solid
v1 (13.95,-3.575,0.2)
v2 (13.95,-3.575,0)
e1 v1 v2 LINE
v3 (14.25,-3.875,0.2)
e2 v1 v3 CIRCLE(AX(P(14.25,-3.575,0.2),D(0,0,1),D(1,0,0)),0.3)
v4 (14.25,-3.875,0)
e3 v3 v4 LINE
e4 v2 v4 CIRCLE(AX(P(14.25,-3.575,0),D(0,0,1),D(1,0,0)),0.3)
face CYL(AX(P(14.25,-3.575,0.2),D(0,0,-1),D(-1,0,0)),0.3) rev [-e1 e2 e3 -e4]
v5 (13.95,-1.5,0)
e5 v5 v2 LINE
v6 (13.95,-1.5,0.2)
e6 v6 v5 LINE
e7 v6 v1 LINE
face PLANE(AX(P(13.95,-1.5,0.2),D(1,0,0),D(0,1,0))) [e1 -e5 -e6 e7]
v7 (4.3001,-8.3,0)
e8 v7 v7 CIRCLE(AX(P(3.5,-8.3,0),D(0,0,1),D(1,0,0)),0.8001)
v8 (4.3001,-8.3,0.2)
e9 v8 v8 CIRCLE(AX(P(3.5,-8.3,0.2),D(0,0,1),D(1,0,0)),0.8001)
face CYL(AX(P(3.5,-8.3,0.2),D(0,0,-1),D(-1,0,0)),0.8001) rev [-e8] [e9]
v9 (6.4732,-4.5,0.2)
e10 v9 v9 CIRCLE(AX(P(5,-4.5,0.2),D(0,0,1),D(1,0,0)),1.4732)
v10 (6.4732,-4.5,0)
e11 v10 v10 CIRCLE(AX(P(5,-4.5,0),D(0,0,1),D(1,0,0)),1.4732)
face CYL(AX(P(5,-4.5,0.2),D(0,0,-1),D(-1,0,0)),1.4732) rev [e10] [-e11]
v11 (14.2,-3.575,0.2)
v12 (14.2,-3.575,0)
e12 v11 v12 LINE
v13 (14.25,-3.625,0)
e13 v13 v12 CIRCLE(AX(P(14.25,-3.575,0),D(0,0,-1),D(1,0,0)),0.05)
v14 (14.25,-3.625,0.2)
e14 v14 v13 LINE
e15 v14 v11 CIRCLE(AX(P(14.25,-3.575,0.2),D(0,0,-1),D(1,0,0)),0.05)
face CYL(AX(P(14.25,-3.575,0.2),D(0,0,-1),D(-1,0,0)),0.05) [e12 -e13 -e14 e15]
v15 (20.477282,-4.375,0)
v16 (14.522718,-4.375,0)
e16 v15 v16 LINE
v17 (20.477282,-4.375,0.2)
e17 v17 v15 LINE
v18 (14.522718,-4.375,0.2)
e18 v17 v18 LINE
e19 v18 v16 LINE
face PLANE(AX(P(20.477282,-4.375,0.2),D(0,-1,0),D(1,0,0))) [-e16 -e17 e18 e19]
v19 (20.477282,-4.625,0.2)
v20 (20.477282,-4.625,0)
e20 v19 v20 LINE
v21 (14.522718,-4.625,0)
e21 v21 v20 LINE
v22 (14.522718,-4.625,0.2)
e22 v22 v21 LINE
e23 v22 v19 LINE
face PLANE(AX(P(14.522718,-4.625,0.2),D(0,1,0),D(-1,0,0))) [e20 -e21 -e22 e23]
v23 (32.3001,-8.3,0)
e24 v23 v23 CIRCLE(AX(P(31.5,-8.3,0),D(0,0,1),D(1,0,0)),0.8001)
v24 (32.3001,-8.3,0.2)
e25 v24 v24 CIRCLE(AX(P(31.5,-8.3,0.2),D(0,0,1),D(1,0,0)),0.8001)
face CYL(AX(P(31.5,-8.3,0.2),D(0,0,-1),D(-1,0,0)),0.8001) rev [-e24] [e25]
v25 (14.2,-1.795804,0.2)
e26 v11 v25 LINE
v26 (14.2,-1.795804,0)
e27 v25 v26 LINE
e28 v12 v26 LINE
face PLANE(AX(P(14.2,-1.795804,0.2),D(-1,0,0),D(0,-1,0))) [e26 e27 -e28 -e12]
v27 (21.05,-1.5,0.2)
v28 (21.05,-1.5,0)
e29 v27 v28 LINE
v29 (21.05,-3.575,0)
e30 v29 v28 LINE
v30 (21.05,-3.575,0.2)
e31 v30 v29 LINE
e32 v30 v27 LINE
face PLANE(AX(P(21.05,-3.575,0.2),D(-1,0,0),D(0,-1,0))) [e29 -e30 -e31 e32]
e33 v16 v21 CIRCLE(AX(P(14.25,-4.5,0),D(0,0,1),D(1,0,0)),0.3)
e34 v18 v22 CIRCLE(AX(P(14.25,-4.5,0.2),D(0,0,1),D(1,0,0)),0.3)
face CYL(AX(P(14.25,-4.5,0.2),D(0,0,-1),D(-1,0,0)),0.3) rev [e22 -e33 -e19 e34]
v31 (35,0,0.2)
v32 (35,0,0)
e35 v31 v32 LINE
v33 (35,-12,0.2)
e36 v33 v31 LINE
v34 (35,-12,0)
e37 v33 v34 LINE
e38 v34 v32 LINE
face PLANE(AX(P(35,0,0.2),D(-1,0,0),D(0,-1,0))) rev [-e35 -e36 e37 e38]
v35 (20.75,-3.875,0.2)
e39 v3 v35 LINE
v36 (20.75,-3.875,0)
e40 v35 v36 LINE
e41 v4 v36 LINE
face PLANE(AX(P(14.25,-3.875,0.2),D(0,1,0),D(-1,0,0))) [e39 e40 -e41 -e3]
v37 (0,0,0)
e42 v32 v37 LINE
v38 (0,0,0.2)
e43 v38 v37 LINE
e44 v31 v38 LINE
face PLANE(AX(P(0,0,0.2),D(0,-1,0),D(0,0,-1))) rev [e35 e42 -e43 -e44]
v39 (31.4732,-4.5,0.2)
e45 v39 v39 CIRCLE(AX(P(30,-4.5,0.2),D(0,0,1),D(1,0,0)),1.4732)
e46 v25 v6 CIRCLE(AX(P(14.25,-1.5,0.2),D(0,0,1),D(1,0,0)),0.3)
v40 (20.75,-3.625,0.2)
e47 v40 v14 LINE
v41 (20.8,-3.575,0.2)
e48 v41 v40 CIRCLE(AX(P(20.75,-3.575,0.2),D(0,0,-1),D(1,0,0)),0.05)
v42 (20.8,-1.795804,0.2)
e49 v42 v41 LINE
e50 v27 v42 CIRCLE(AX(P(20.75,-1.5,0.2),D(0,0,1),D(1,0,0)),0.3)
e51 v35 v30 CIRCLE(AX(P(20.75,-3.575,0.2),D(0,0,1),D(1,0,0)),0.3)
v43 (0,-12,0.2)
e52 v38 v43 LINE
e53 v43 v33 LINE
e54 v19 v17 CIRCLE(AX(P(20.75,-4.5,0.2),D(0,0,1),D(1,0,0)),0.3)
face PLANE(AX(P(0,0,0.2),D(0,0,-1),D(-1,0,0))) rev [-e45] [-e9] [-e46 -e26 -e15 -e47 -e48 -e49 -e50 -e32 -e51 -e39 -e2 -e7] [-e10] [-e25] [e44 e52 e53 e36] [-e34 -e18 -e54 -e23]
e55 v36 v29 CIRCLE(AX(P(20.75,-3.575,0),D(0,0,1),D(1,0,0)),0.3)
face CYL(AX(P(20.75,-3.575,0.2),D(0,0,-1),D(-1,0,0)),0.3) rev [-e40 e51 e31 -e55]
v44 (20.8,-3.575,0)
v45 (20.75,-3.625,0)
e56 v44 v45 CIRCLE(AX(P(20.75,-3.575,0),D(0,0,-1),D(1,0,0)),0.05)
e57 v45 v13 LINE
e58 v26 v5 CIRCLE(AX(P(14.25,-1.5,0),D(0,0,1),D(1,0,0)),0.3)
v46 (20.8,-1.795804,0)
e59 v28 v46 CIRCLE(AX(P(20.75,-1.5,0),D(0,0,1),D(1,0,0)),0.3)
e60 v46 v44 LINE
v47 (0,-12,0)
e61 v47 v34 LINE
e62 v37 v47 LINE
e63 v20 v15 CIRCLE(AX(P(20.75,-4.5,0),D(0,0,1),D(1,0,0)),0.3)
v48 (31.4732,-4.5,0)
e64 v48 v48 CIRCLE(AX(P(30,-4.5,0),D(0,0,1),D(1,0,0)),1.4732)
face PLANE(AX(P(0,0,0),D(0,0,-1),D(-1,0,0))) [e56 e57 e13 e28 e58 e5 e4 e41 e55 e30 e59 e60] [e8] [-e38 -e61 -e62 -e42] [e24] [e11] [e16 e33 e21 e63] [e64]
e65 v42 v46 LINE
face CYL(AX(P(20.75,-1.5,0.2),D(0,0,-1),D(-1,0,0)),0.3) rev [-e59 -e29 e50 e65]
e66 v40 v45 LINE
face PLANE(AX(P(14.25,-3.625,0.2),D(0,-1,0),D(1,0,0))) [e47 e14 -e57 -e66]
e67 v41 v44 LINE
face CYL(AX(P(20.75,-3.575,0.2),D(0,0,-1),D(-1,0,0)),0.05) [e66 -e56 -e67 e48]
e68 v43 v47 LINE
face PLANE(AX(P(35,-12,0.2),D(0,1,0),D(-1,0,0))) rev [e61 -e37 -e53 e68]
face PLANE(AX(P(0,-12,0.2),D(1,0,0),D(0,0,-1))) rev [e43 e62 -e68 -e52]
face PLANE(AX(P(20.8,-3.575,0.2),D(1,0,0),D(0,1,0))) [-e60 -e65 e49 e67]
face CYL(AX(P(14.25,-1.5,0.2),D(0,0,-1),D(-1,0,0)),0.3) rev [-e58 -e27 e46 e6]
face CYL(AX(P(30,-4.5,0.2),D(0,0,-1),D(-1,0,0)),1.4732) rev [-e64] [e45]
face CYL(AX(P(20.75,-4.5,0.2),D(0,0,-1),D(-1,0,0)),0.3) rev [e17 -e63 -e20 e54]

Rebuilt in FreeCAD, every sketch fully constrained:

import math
import FreeCAD as App
import Part
import Sketcher

doc = App.newDocument("Part")
params = doc.addObject("Spreadsheet::Sheet", "Params")
for row, (alias, value) in enumerate([
    ("sketch1_radius", "0.3 mm"),
    ("sketch1_width", "35 mm"),
    ("sketch1_height", "12 mm"),
    ("sketch1_radius2", "0.05 mm"),
    ("sketch1_width2", "6.5 mm"),
    ("pad1_length", "0.2 mm"),
], start=1):
    params.set(f"A{row}", alias)
    params.set(f"B{row}", "=" + value)
    params.setAlias(f"B{row}", alias)

body = doc.addObject("PartDesign::Body", "Body")

sketch1 = body.newObject("Sketcher::SketchObject", "Sketch")
sketch1.AttachmentSupport = (doc.getObject("XY_Plane"), [""])
sketch1.MapMode = "FlatFace"
sketch1.addGeometry(Part.LineSegment(App.Vector(0, 0, 0), App.Vector(0, -12, 0)), False)
sketch1.addGeometry(Part.LineSegment(App.Vector(0, -12, 0), App.Vector(35, -12, 0)), False)
sketch1.addGeometry(Part.LineSegment(App.Vector(35, -12, 0), App.Vector(35, 0, 0)), False)
sketch1.addGeometry(Part.LineSegment(App.Vector(35, 0, 0), App.Vector(0, 0, 0)), False)
sketch1.addGeometry(Part.Circle(App.Vector(3.5, -8.3, 0), App.Vector(0, 0, 1), 0.8), False)
sketch1.addGeometry(Part.Circle(App.Vector(31.5, -8.3, 0), App.Vector(0, 0, 1), 0.8), False)
sketch1.addGeometry(Part.Circle(App.Vector(5, -4.5, 0), App.Vector(0, 0, 1), 1.47), False)
sketch1.addGeometry(Part.LineSegment(App.Vector(14.52, -4.38, 0), App.Vector(20.48, -4.38, 0)), False)
sketch1.addGeometry(Part.ArcOfCircle(Part.Circle(App.Vector(20.75, -4.5, 0), App.Vector(0, 0, 1), 0.3), math.radians(-155), math.radians(155)), False)
sketch1.addGeometry(Part.LineSegment(App.Vector(20.48, -4.62, 0), App.Vector(14.52, -4.62, 0)), False)
sketch1.addGeometry(Part.ArcOfCircle(Part.Circle(App.Vector(14.25, -4.5, 0), App.Vector(0, 0, 1), 0.3), math.radians(25), math.radians(335)), False)
sketch1.addGeometry(Part.Circle(App.Vector(30, -4.5, 0), App.Vector(0, 0, 1), 1.47), False)
sketch1.addGeometry(Part.ArcOfCircle(Part.Circle(App.Vector(14.25, -1.5, 0), App.Vector(0, 0, 1), 0.3), math.radians(-100), math.radians(180)), False)
sketch1.addGeometry(Part.LineSegment(App.Vector(14.2, -1.8, 0), App.Vector(14.2, -3.58, 0)), False)
sketch1.addGeometry(Part.ArcOfCircle(Part.Circle(App.Vector(14.25, -3.58, 0), App.Vector(0, 0, 1), 0.05), math.radians(180), math.radians(270)), False)
sketch1.addGeometry(Part.LineSegment(App.Vector(14.25, -3.62, 0), App.Vector(20.75, -3.62, 0)), False)
sketch1.addGeometry(Part.ArcOfCircle(Part.Circle(App.Vector(20.75, -3.58, 0), App.Vector(0, 0, 1), 0.05), math.radians(-90), math.radians(0)), False)
sketch1.addGeometry(Part.LineSegment(App.Vector(20.8, -3.58, 0), App.Vector(20.8, -1.8, 0)), False)
sketch1.addGeometry(Part.ArcOfCircle(Part.Circle(App.Vector(20.75, -1.5, 0), App.Vector(0, 0, 1), 0.3), math.radians(0), math.radians(280)), False)
sketch1.addGeometry(Part.LineSegment(App.Vector(21.05, -1.5, 0), App.Vector(21.05, -3.58, 0)), False)
sketch1.addGeometry(Part.ArcOfCircle(Part.Circle(App.Vector(20.75, -3.57, 0), App.Vector(0, 0, 1), 0.3), math.radians(-90), math.radians(0)), False)
sketch1.addGeometry(Part.LineSegment(App.Vector(20.75, -3.88, 0), App.Vector(14.25, -3.88, 0)), False)
sketch1.addGeometry(Part.ArcOfCircle(Part.Circle(App.Vector(14.25, -3.57, 0), App.Vector(0, 0, 1), 0.3), math.radians(-180), math.radians(-90)), False)
sketch1.addGeometry(Part.LineSegment(App.Vector(13.95, -3.58, 0), App.Vector(13.95, -1.5, 0)), False)
sketch1.addConstraint(Sketcher.Constraint("Coincident", 0, 2, 1, 1))
sketch1.addConstraint(Sketcher.Constraint("Coincident", 1, 2, 2, 1))
sketch1.addConstraint(Sketcher.Constraint("Coincident", 2, 2, 3, 1))
sketch1.addConstraint(Sketcher.Constraint("Coincident", 3, 2, 0, 1))
sketch1.addConstraint(Sketcher.Constraint("Coincident", 7, 2, 8, 2))
sketch1.addConstraint(Sketcher.Constraint("Coincident", 8, 1, 9, 1))
sketch1.addConstraint(Sketcher.Constraint("Coincident", 9, 2, 10, 2))
sketch1.addConstraint(Sketcher.Constraint("Coincident", 10, 1, 7, 1))
sketch1.addConstraint(Sketcher.Constraint("Coincident", 12, 1, 13, 1))
sketch1.addConstraint(Sketcher.Constraint("Tangent", 13, 2, 14, 1))
sketch1.addConstraint(Sketcher.Constraint("Tangent", 14, 2, 15, 1))
sketch1.addConstraint(Sketcher.Constraint("Tangent", 15, 2, 16, 1))
sketch1.addConstraint(Sketcher.Constraint("Tangent", 16, 2, 17, 1))
sketch1.addConstraint(Sketcher.Constraint("Coincident", 17, 2, 18, 2))
sketch1.addConstraint(Sketcher.Constraint("Tangent", 18, 1, 19, 1))
sketch1.addConstraint(Sketcher.Constraint("Tangent", 19, 2, 20, 2))
sketch1.addConstraint(Sketcher.Constraint("Tangent", 20, 1, 21, 1))
sketch1.addConstraint(Sketcher.Constraint("Tangent", 21, 2, 22, 2))
sketch1.addConstraint(Sketcher.Constraint("Tangent", 22, 1, 23, 1))
sketch1.addConstraint(Sketcher.Constraint("Tangent", 23, 2, 12, 2))
sketch1.addConstraint(Sketcher.Constraint("Vertical", 0))
sketch1.addConstraint(Sketcher.Constraint("Horizontal", 1))
sketch1.addConstraint(Sketcher.Constraint("Vertical", 2))
sketch1.addConstraint(Sketcher.Constraint("Horizontal", 3))
sketch1.addConstraint(Sketcher.Constraint("Horizontal", 7))
sketch1.addConstraint(Sketcher.Constraint("Horizontal", 9))
sketch1.addConstraint(Sketcher.Constraint("Vertical", 13))
sketch1.addConstraint(Sketcher.Constraint("Horizontal", 15))
sketch1.addConstraint(Sketcher.Constraint("Vertical", 17))
sketch1.addConstraint(Sketcher.Constraint("Vertical", 19))
sketch1.addConstraint(Sketcher.Constraint("Horizontal", 21))
sketch1.addConstraint(Sketcher.Constraint("Vertical", 23))
sketch1.addConstraint(Sketcher.Constraint("Coincident", 3, 2, -1, 1))
sketch1.addConstraint(Sketcher.Constraint("Coincident", 20, 3, 16, 3))
sketch1.addConstraint(Sketcher.Constraint("Coincident", 22, 3, 14, 3))
sketch1.addConstraint(Sketcher.Constraint("Equal", 4, 5))
sketch1.addConstraint(Sketcher.Constraint("Equal", 8, 10))
sketch1.addConstraint(Sketcher.Constraint("Equal", 6, 11))
sketch1.addConstraint(Sketcher.Constraint("Equal", 10, 12))
sketch1.addConstraint(Sketcher.Constraint("Equal", 14, 16))
sketch1.addConstraint(Sketcher.Constraint("Equal", 12, 18))
sketch1.addConstraint(Sketcher.Constraint("Equal", 18, 20))
sketch1.addConstraint(Sketcher.Constraint("Horizontal", 4, 3, 5, 3))
sketch1.addConstraint(Sketcher.Constraint("Horizontal", 6, 3, 8, 3))
sketch1.addConstraint(Sketcher.Constraint("Horizontal", 8, 3, 10, 3))
sketch1.addConstraint(Sketcher.Constraint("Horizontal", 10, 3, 11, 3))
sketch1.addConstraint(Sketcher.Constraint("Horizontal", 12, 3, 18, 3))
sketch1.addConstraint(Sketcher.Constraint("Vertical", 10, 3, 12, 3))
sketch1.addConstraint(Sketcher.Constraint("Vertical", 8, 3, 16, 3))
sketch1.addConstraint(Sketcher.Constraint("Vertical", 7, 2, 8, 1))
sketch1.addConstraint(Sketcher.Constraint("Radius", 8, 0.3))
sketch1.addConstraint(Sketcher.Constraint("DistanceX", 1, 1, 1, 2, 35.0))
sketch1.addConstraint(Sketcher.Constraint("DistanceY", 0, 2, 0, 1, 12.0))
sketch1.addConstraint(Sketcher.Constraint("Radius", 14, 0.05))
sketch1.addConstraint(Sketcher.Constraint("DistanceX", 15, 1, 15, 2, 6.5))
sketch1.addConstraint(Sketcher.Constraint("DistanceX", -1, 1, 6, 3, 5.0))
sketch1.addConstraint(Sketcher.Constraint("DistanceX", -1, 1, 11, 3, 30.0))
sketch1.addConstraint(Sketcher.Constraint("DistanceX", 4, 3, 5, 3, 28.0))
sketch1.addConstraint(Sketcher.Constraint("DistanceY", 10, 3, 12, 3, 3.0))
sketch1.addConstraint(Sketcher.Constraint("DistanceY", 8, 1, 15, 2, 1.0))
sketch1.addConstraint(Sketcher.Constraint("Diameter", 4, 1.6002))
sketch1.addConstraint(Sketcher.Constraint("Diameter", 6, 2.9464))
sketch1.addConstraint(Sketcher.Constraint("DistanceX", -1, 1, 4, 3, 3.5))
sketch1.addConstraint(Sketcher.Constraint("DistanceY", 4, 3, -1, 1, 8.3))
sketch1.addConstraint(Sketcher.Constraint("DistanceY", 6, 3, -1, 1, 4.5))
sketch1.addConstraint(Sketcher.Constraint("DistanceX", -1, 1, 12, 1, 14.2))
sketch1.addConstraint(Sketcher.Constraint("DistanceY", 7, 2, 16, 3, 0.8))
sketch1.setExpression("Constraints[50]", "Params.sketch1_radius")
sketch1.setExpression("Constraints[51]", "Params.sketch1_width")
sketch1.setExpression("Constraints[52]", "Params.sketch1_height")
sketch1.setExpression("Constraints[53]", "Params.sketch1_radius2")
sketch1.setExpression("Constraints[54]", "Params.sketch1_width2")
pad1 = body.newObject("PartDesign::Pad", "Pad")
pad1.Profile = sketch1
pad1.setExpression("Length", "Params.pad1_length")

doc.recompute()
